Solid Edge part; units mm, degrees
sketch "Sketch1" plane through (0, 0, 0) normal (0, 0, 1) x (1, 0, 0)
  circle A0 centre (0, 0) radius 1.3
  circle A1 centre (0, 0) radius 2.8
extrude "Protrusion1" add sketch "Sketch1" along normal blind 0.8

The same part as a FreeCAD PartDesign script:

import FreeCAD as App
import Part
import Sketcher

V = App.Vector
Q = App.Units.Quantity

doc = App.newDocument("Part")
body = doc.addObject("PartDesign::Body", "Body")

sketch1 = body.newObject("Sketcher::SketchObject", "Sketch")
sketch1.AttachmentSupport = (doc.getObject("XY_Plane"), [""])
sketch1.MapMode = "FlatFace"
sketch1.addGeometry([
    Part.Circle(V(0, 0, 0), V(0, 0, 1), 2.8),
    Part.Circle(V(0, 0, 0), V(0, 0, 1), 1.3),
], False)
sketch1.addConstraint([
    Sketcher.Constraint("Coincident", 0, 3, -1, 1),
    Sketcher.Constraint("Coincident", 1, 3, -1, 1),
    Sketcher.Constraint("Diameter", 0, Q("5.6 mm")),
    Sketcher.Constraint("Diameter", 1, Q("2.6 mm")),
])
pad1 = body.newObject("PartDesign::Pad", "Pad")
pad1.Profile = sketch1
pad1.Length = 0.8

doc.recompute()
